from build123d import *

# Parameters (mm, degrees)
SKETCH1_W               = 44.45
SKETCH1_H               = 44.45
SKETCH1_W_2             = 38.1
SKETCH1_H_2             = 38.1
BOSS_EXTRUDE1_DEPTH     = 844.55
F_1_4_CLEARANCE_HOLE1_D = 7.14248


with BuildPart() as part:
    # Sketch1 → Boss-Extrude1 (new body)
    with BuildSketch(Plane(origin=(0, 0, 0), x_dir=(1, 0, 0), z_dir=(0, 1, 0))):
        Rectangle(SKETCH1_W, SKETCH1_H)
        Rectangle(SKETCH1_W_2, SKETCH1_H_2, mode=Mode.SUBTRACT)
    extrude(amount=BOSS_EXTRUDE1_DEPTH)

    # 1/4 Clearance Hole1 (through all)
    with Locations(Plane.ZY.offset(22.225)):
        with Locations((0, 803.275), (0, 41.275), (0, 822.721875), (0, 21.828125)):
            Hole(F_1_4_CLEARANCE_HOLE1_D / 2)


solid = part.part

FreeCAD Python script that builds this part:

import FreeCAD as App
import Part
import Sketcher

V = App.Vector
Q = App.Units.Quantity


def add_polygon(sketch, points):
    """Adds a closed chain of lines whose ends are joined by coincident constraints."""
    first, n = sketch.GeometryCount, len(points)
    for a, b in zip(points, points[1:] + points[:1]):
        sketch.addGeometry(Part.LineSegment(App.Vector(*a, 0), App.Vector(*b, 0)), False)
    for i in range(n):
        sketch.addConstraint(Sketcher.Constraint("Coincident", first + i, 2, first + (i + 1) % n, 1))

doc = App.newDocument("Part")
params = doc.addObject("Spreadsheet::Sheet", "Params")
for row, (alias, value) in enumerate([
    ("sketch1_width", "1.5 in"),
    ("sketch1_width2", "1.75 in"),
    ("pad1_length", "33.25 in"),
    ("hole_diameter", "0.2812 in"),
], start=1):
    params.set(f"A{row}", alias)
    params.set(f"B{row}", "=" + value)
    params.setAlias(f"B{row}", alias)

body = doc.addObject("PartDesign::Body", "Body")

sketch1 = doc.addObject("Sketcher::SketchObject", "Sketch")
body.addObject(sketch1)
sketch1.AttachmentSupport = (doc.XZ_Plane, [""])
sketch1.MapMode = "FlatFace"
add_polygon(sketch1, [(-22.225, -22.225), (-22.225, 22.225), (22.225, 22.225), (22.225, -22.225)])
add_polygon(sketch1, [(19.05, 19.05), (-19.05, 19.05), (-19.05, -19.05), (19.05, -19.05)])
sketch1.addConstraint([
    Sketcher.Constraint("Vertical", 0),
    Sketcher.Constraint("Horizontal", 1),
    Sketcher.Constraint("Vertical", 2),
    Sketcher.Constraint("Horizontal", 3),
    Sketcher.Constraint("Horizontal", 4),
    Sketcher.Constraint("Vertical", 5),
    Sketcher.Constraint("Horizontal", 6),
    Sketcher.Constraint("Vertical", 7),
    Sketcher.Constraint("Symmetric", 0, 2, 2, 2, -1, 1),
    Sketcher.Constraint("Symmetric", 4, 2, 6, 2, -1, 1),
    Sketcher.Constraint("Equal", 3, 0),
    Sketcher.Constraint("Equal", 6, 5),
    Sketcher.Constraint("DistanceX", 4, 2, 4, 1, Q("1.5 in")),
    Sketcher.Constraint("DistanceX", 1, 1, 1, 2, Q("1.75 in")),
])
sketch1.setExpression("Constraints[20]", "Params.sketch1_width")
sketch1.setExpression("Constraints[21]", "Params.sketch1_width2")
pad1 = doc.addObject("PartDesign::Pad", "Pad")
body.addObject(pad1)
pad1.Profile = sketch1
pad1.setExpression("Length", "Params.pad1_length")
pad1.Reversed = True

sketch2 = doc.addObject("Sketcher::SketchObject", "Sketch001")
body.addObject(sketch2)
sketch2.AttachmentSupport = (doc.YZ_Plane, [""])
sketch2.MapMode = "FlatFace"
sketch2.AttachmentOffset = App.Placement(V(0, 0, -0.875 * 25.4), App.Rotation())
sketch2.addGeometry([
    Part.Circle(V(803.275, 0, 0), V(0, 0, 1), 3.57124),
    Part.Circle(V(41.275, 0, 0), V(0, 0, 1), 3.57124),
    Part.Circle(V(822.721875, 0, 0), V(0, 0, 1), 3.57124),
    Part.Circle(V(21.828125, 0, 0), V(0, 0, 1), 3.57124),
], False)
sketch2.addConstraint([
    Sketcher.Constraint("Equal", 0, 1),
    Sketcher.Constraint("Equal", 1, 2),
    Sketcher.Constraint("Equal", 2, 3),
    Sketcher.Constraint("PointOnObject", 0, 3, -1),
    Sketcher.Constraint("PointOnObject", 1, 3, -1),
    Sketcher.Constraint("PointOnObject", 2, 3, -1),
    Sketcher.Constraint("PointOnObject", 3, 3, -1),
    Sketcher.Constraint("DistanceX", 1, 3, 0, 3, Q("30 in")),
    Sketcher.Constraint("Diameter", 0, Q("0.2812 in")),
    Sketcher.Constraint("DistanceX", -1, 1, 0, 3, Q("31.625 in")),
    Sketcher.Constraint("DistanceX", -1, 1, 2, 3, Q("32.390625 in")),
    Sketcher.Constraint("DistanceX", -1, 1, 3, 3, Q("0.859375 in")),
])
doc.recompute()
hole = doc.addObject("PartDesign::Hole", "Hole")
body.addObject(hole)
hole.Profile = sketch2
hole.ThreadType = "None"
hole.setExpression("Diameter", "Params.hole_diameter")
hole.DepthType = "ThroughAll"
hole.Reversed = True

doc.recompute()
